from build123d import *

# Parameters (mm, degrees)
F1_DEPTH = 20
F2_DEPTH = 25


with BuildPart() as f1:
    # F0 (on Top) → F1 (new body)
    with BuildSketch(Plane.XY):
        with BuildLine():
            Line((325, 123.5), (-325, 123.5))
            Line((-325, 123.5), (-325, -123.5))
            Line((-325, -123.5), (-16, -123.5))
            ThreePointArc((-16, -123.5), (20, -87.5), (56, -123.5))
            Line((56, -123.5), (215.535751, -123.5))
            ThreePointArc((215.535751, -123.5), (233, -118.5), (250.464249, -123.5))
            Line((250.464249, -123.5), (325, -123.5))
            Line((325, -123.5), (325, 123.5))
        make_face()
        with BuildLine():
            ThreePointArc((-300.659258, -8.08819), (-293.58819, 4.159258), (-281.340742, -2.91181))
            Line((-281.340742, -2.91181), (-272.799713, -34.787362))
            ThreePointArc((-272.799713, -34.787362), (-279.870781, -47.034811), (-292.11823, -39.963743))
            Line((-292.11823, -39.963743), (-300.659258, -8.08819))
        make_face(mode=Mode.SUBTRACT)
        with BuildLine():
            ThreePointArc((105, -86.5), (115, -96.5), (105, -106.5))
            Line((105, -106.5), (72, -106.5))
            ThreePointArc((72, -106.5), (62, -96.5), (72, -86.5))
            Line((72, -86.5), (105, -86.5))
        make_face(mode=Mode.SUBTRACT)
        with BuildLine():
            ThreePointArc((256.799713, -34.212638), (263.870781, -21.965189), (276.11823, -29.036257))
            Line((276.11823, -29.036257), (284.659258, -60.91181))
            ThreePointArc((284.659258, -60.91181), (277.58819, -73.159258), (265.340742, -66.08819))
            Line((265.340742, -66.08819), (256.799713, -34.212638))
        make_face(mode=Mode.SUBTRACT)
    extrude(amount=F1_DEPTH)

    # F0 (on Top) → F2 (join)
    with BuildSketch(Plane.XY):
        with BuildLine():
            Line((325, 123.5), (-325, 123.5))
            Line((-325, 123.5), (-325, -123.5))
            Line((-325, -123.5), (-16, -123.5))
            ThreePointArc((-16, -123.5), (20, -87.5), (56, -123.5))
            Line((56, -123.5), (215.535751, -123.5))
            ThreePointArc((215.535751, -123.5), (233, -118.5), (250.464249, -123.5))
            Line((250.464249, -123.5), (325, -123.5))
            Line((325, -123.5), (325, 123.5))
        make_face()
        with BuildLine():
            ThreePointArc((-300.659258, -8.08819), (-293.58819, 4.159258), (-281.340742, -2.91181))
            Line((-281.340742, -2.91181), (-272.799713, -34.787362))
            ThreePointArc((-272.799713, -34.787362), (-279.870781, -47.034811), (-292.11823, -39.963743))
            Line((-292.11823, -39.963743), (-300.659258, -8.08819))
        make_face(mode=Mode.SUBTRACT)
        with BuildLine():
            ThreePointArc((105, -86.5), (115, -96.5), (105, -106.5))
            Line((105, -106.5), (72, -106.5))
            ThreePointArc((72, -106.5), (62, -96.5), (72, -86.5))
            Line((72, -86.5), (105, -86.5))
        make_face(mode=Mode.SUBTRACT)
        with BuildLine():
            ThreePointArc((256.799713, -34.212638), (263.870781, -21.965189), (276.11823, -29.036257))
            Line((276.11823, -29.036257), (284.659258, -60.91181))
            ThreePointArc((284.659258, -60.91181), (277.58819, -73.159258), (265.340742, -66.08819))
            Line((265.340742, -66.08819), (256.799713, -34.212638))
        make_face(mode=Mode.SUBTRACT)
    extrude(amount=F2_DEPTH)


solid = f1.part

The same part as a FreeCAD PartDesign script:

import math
import FreeCAD as App
import Part
import Sketcher
Q = App.Units.Quantity

doc = App.newDocument("Part")
body = doc.addObject("PartDesign::Body", "Body")

# Sketch on XY plane
sketch1 = body.newObject("Sketcher::SketchObject", "Sketch")
sketch1.AttachmentSupport = (doc.getObject("XY_Plane"), [""])
sketch1.MapMode = "FlatFace"
sketch1.addGeometry([
    Part.LineSegment(App.Vector(325, 123.5, 0), App.Vector(-325, 123.5, 0)),  # 0
    Part.LineSegment(App.Vector(-325, 123.5, 0), App.Vector(-325, -123.5, 0)),  # 1
    Part.LineSegment(App.Vector(-325, -123.5, 0), App.Vector(-16, -123.5, 0)),  # 2
    Part.ArcOfCircle(Part.Circle(App.Vector(20, -123.5, 0), App.Vector(0, 0, 1), 36), math.radians(0), math.radians(180)),  # 3
    Part.LineSegment(App.Vector(56, -123.5, 0), App.Vector(215.535751, -123.5, 0)),  # 4
    Part.ArcOfCircle(Part.Circle(App.Vector(233, -151.499999, 0), App.Vector(0, 0, 1), 32.999999), math.radians(58.047253), math.radians(121.952747)),  # 5
    Part.LineSegment(App.Vector(250.464249, -123.5, 0), App.Vector(325, -123.5, 0)),  # 6
    Part.LineSegment(App.Vector(325, -123.5, 0), App.Vector(325, 123.5, 0)),  # 7
    Part.LineSegment(App.Vector(72, -86.5, 0), App.Vector(105, -86.5, 0)),  # 8
    Part.ArcOfCircle(Part.Circle(App.Vector(105, -96.5, 0), App.Vector(0, 0, 1), 10), math.radians(-90), math.radians(90)),  # 9
    Part.LineSegment(App.Vector(105, -106.5, 0), App.Vector(72, -106.5, 0)),  # 10
    Part.ArcOfCircle(Part.Circle(App.Vector(72, -96.5, 0), App.Vector(0, 0, 1), 10), math.radians(90), math.radians(270)),  # 11
    Part.LineSegment(App.Vector(-292.11823, -39.963743, 0), App.Vector(-300.659258, -8.08819, 0)),  # 12
    Part.ArcOfCircle(Part.Circle(App.Vector(-291, -5.5, 0), App.Vector(0, 0, 1), 10), math.radians(14.999998), math.radians(194.999998)),  # 13
    Part.LineSegment(App.Vector(-281.340742, -2.91181, 0), App.Vector(-272.799713, -34.787362, 0)),  # 14
    Part.ArcOfCircle(Part.Circle(App.Vector(-282.458972, -37.375552, 0), App.Vector(0, 0, 1), 10), math.radians(-165), math.radians(15)),  # 15
    Part.LineSegment(App.Vector(265.340742, -66.08819, 0), App.Vector(256.799713, -34.212638, 0)),  # 16
    Part.ArcOfCircle(Part.Circle(App.Vector(266.458972, -31.624447, 0), App.Vector(0, 0, 1), 10), math.radians(15), math.radians(195)),  # 17
    Part.LineSegment(App.Vector(276.11823, -29.036257, 0), App.Vector(284.659258, -60.91181, 0)),  # 18
    Part.ArcOfCircle(Part.Circle(App.Vector(275, -63.5, 0), App.Vector(0, 0, 1), 10), math.radians(-165.000002), math.radians(14.999998)),  # 19
], False)
sketch1.addConstraint([
    Sketcher.Constraint("Coincident", 0, 2, 1, 1),
    Sketcher.Constraint("Coincident", 1, 2, 2, 1),
    Sketcher.Constraint("Coincident", 2, 2, 3, 2),
    Sketcher.Constraint("Coincident", 3, 1, 4, 1),
    Sketcher.Constraint("Coincident", 4, 2, 5, 2),
    Sketcher.Constraint("Coincident", 5, 1, 6, 1),
    Sketcher.Constraint("Coincident", 6, 2, 7, 1),
    Sketcher.Constraint("Coincident", 7, 2, 0, 1),
    Sketcher.Constraint("Tangent", 8, 2, 9, 2),
    Sketcher.Constraint("Tangent", 9, 1, 10, 1),
    Sketcher.Constraint("Tangent", 10, 2, 11, 2),
    Sketcher.Constraint("Tangent", 11, 1, 8, 1),
    Sketcher.Constraint("Tangent", 12, 2, 13, 2),
    Sketcher.Constraint("Tangent", 13, 1, 14, 1),
    Sketcher.Constraint("Tangent", 14, 2, 15, 2),
    Sketcher.Constraint("Tangent", 15, 1, 12, 1),
    Sketcher.Constraint("Tangent", 16, 2, 17, 2),
    Sketcher.Constraint("Tangent", 17, 1, 18, 1),
    Sketcher.Constraint("Tangent", 18, 2, 19, 2),
    Sketcher.Constraint("Tangent", 19, 1, 16, 1),
    Sketcher.Constraint("Horizontal", 0),
    Sketcher.Constraint("Vertical", 1),
    Sketcher.Constraint("Horizontal", 2),
    Sketcher.Constraint("Horizontal", 4),
    Sketcher.Constraint("Horizontal", 6),
    Sketcher.Constraint("Vertical", 7),
    Sketcher.Constraint("Horizontal", 8),
    Sketcher.Constraint("Horizontal", 10),
    Sketcher.Constraint("Equal", 11, 13),
    Sketcher.Constraint("Equal", 13, 15),
    Sketcher.Constraint("Equal", 15, 17),
    Sketcher.Constraint("Equal", 17, 19),
    Sketcher.Constraint("Symmetric", 0, 2, 6, 2, -1, 1),
    Sketcher.Constraint("Parallel", 14, 16),
    Sketcher.Constraint("Horizontal", 3, 3, 1, 2),
    Sketcher.Constraint("Horizontal", 2, 2, 3, 1),
    Sketcher.Constraint("Horizontal", 4, 2, 5, 1),
    Sketcher.Constraint("Equal", 14, 16),
    Sketcher.Constraint("Radius", 3, Q("36 mm")),
    Sketcher.Constraint("Radius", 5, Q("32.999999 mm")),
    Sketcher.Constraint("Radius", 9, Q("10 mm")),
    Sketcher.Constraint("DistanceX", 0, 2, 0, 1, Q("650 mm")),
    Sketcher.Constraint("DistanceX", 2, 1, 2, 2, Q("309 mm")),
    Sketcher.Constraint("DistanceX", 8, 1, 8, 2, Q("33 mm")),
    Sketcher.Constraint("DistanceY", 1, 2, 1, 1, Q("247 mm")),
    Sketcher.Constraint("Angle", 12, Q("104.999999 deg")),
    Sketcher.Constraint("Distance", 12, Q("33.000001 mm")),
    Sketcher.Constraint("DistanceX", -1, 1, 5, 3, Q("233 mm")),
    Sketcher.Constraint("DistanceX", -1, 1, 9, 3, Q("105 mm")),
    Sketcher.Constraint("DistanceX", 13, 3, -1, 1, Q("291 mm")),
    Sketcher.Constraint("DistanceX", -1, 1, 19, 3, Q("275 mm")),
    Sketcher.Constraint("DistanceY", 5, 3, 3, 3, Q("27.999999 mm")),
    Sketcher.Constraint("DistanceY", 3, 3, 9, 3, Q("27 mm")),
    Sketcher.Constraint("DistanceY", 3, 3, 13, 3, Q("118 mm")),
    Sketcher.Constraint("DistanceY", 5, 3, 19, 3, Q("87.999999 mm")),
])
pad1 = body.newObject("PartDesign::Pad", "Pad")
pad1.Profile = sketch1
pad1.Length = 20

# Sketch on XY plane
sketch2 = body.newObject("Sketcher::SketchObject", "Sketch001")
sketch2.AttachmentSupport = (doc.getObject("XY_Plane"), [""])
sketch2.MapMode = "FlatFace"
sketch2.addGeometry([
    Part.LineSegment(App.Vector(325, 123.5, 0), App.Vector(-325, 123.5, 0)),  # 0
    Part.LineSegment(App.Vector(-325, 123.5, 0), App.Vector(-325, -123.5, 0)),  # 1
    Part.LineSegment(App.Vector(-325, -123.5, 0), App.Vector(-16, -123.5, 0)),  # 2
    Part.ArcOfCircle(Part.Circle(App.Vector(20, -123.5, 0), App.Vector(0, 0, 1), 36), math.radians(0), math.radians(180)),  # 3
    Part.LineSegment(App.Vector(56, -123.5, 0), App.Vector(215.535751, -123.5, 0)),  # 4
    Part.ArcOfCircle(Part.Circle(App.Vector(233, -151.499999, 0), App.Vector(0, 0, 1), 32.999999), math.radians(58.047253), math.radians(121.952747)),  # 5
    Part.LineSegment(App.Vector(250.464249, -123.5, 0), App.Vector(325, -123.5, 0)),  # 6
    Part.LineSegment(App.Vector(325, -123.5, 0), App.Vector(325, 123.5, 0)),  # 7
    Part.LineSegment(App.Vector(72, -86.5, 0), App.Vector(105, -86.5, 0)),  # 8
    Part.ArcOfCircle(Part.Circle(App.Vector(105, -96.5, 0), App.Vector(0, 0, 1), 10), math.radians(-90), math.radians(90)),  # 9
    Part.LineSegment(App.Vector(105, -106.5, 0), App.Vector(72, -106.5, 0)),  # 10
    Part.ArcOfCircle(Part.Circle(App.Vector(72, -96.5, 0), App.Vector(0, 0, 1), 10), math.radians(90), math.radians(270)),  # 11
    Part.LineSegment(App.Vector(-292.11823, -39.963743, 0), App.Vector(-300.659258, -8.08819, 0)),  # 12
    Part.ArcOfCircle(Part.Circle(App.Vector(-291, -5.5, 0), App.Vector(0, 0, 1), 10), math.radians(14.999998), math.radians(194.999998)),  # 13
    Part.LineSegment(App.Vector(-281.340742, -2.91181, 0), App.Vector(-272.799713, -34.787362, 0)),  # 14
    Part.ArcOfCircle(Part.Circle(App.Vector(-282.458972, -37.375552, 0), App.Vector(0, 0, 1), 10), math.radians(-165), math.radians(15)),  # 15
    Part.LineSegment(App.Vector(265.340742, -66.08819, 0), App.Vector(256.799713, -34.212638, 0)),  # 16
    Part.ArcOfCircle(Part.Circle(App.Vector(266.458972, -31.624447, 0), App.Vector(0, 0, 1), 10), math.radians(15), math.radians(195)),  # 17
    Part.LineSegment(App.Vector(276.11823, -29.036257, 0), App.Vector(284.659258, -60.91181, 0)),  # 18
    Part.ArcOfCircle(Part.Circle(App.Vector(275, -63.5, 0), App.Vector(0, 0, 1), 10), math.radians(-165.000002), math.radians(14.999998)),  # 19
], False)
sketch2.addConstraint([
    Sketcher.Constraint("Coincident", 0, 2, 1, 1),
    Sketcher.Constraint("Coincident", 1, 2, 2, 1),
    Sketcher.Constraint("Coincident", 2, 2, 3, 2),
    Sketcher.Constraint("Coincident", 3, 1, 4, 1),
    Sketcher.Constraint("Coincident", 4, 2, 5, 2),
    Sketcher.Constraint("Coincident", 5, 1, 6, 1),
    Sketcher.Constraint("Coincident", 6, 2, 7, 1),
    Sketcher.Constraint("Coincident", 7, 2, 0, 1),
    Sketcher.Constraint("Tangent", 8, 2, 9, 2),
    Sketcher.Constraint("Tangent", 9, 1, 10, 1),
    Sketcher.Constraint("Tangent", 10, 2, 11, 2),
    Sketcher.Constraint("Tangent", 11, 1, 8, 1),
    Sketcher.Constraint("Tangent", 12, 2, 13, 2),
    Sketcher.Constraint("Tangent", 13, 1, 14, 1),
    Sketcher.Constraint("Tangent", 14, 2, 15, 2),
    Sketcher.Constraint("Tangent", 15, 1, 12, 1),
    Sketcher.Constraint("Tangent", 16, 2, 17, 2),
    Sketcher.Constraint("Tangent", 17, 1, 18, 1),
    Sketcher.Constraint("Tangent", 18, 2, 19, 2),
    Sketcher.Constraint("Tangent", 19, 1, 16, 1),
    Sketcher.Constraint("Horizontal", 0),
    Sketcher.Constraint("Vertical", 1),
    Sketcher.Constraint("Horizontal", 2),
    Sketcher.Constraint("Horizontal", 4),
    Sketcher.Constraint("Horizontal", 6),
    Sketcher.Constraint("Vertical", 7),
    Sketcher.Constraint("Horizontal", 8),
    Sketcher.Constraint("Horizontal", 10),
    Sketcher.Constraint("Equal", 11, 13),
    Sketcher.Constraint("Equal", 13, 15),
    Sketcher.Constraint("Equal", 15, 17),
    Sketcher.Constraint("Equal", 17, 19),
    Sketcher.Constraint("Symmetric", 0, 2, 6, 2, -1, 1),
    Sketcher.Constraint("Parallel", 14, 16),
    Sketcher.Constraint("Horizontal", 3, 3, 1, 2),
    Sketcher.Constraint("Horizontal", 2, 2, 3, 1),
    Sketcher.Constraint("Horizontal", 4, 2, 5, 1),
    Sketcher.Constraint("Equal", 14, 16),
    Sketcher.Constraint("Radius", 3, Q("36 mm")),
    Sketcher.Constraint("Radius", 5, Q("32.999999 mm")),
    Sketcher.Constraint("Radius", 9, Q("10 mm")),
    Sketcher.Constraint("DistanceX", 0, 2, 0, 1, Q("650 mm")),
    Sketcher.Constraint("DistanceX", 2, 1, 2, 2, Q("309 mm")),
    Sketcher.Constraint("DistanceX", 8, 1, 8, 2, Q("33 mm")),
    Sketcher.Constraint("DistanceY", 1, 2, 1, 1, Q("247 mm")),
    Sketcher.Constraint("Angle", 12, Q("104.999999 deg")),
    Sketcher.Constraint("Distance", 12, Q("33.000001 mm")),
    Sketcher.Constraint("DistanceX", -1, 1, 5, 3, Q("233 mm")),
    Sketcher.Constraint("DistanceX", -1, 1, 9, 3, Q("105 mm")),
    Sketcher.Constraint("DistanceX", 13, 3, -1, 1, Q("291 mm")),
    Sketcher.Constraint("DistanceX", -1, 1, 19, 3, Q("275 mm")),
    Sketcher.Constraint("DistanceY", 5, 3, 3, 3, Q("27.999999 mm")),
    Sketcher.Constraint("DistanceY", 3, 3, 9, 3, Q("27 mm")),
    Sketcher.Constraint("DistanceY", 3, 3, 13, 3, Q("118 mm")),
    Sketcher.Constraint("DistanceY", 5, 3, 19, 3, Q("87.999999 mm")),
])
pad2 = body.newObject("PartDesign::Pad", "Pad001")
pad2.Profile = sketch2
pad2.Length = 25

doc.recompute()
